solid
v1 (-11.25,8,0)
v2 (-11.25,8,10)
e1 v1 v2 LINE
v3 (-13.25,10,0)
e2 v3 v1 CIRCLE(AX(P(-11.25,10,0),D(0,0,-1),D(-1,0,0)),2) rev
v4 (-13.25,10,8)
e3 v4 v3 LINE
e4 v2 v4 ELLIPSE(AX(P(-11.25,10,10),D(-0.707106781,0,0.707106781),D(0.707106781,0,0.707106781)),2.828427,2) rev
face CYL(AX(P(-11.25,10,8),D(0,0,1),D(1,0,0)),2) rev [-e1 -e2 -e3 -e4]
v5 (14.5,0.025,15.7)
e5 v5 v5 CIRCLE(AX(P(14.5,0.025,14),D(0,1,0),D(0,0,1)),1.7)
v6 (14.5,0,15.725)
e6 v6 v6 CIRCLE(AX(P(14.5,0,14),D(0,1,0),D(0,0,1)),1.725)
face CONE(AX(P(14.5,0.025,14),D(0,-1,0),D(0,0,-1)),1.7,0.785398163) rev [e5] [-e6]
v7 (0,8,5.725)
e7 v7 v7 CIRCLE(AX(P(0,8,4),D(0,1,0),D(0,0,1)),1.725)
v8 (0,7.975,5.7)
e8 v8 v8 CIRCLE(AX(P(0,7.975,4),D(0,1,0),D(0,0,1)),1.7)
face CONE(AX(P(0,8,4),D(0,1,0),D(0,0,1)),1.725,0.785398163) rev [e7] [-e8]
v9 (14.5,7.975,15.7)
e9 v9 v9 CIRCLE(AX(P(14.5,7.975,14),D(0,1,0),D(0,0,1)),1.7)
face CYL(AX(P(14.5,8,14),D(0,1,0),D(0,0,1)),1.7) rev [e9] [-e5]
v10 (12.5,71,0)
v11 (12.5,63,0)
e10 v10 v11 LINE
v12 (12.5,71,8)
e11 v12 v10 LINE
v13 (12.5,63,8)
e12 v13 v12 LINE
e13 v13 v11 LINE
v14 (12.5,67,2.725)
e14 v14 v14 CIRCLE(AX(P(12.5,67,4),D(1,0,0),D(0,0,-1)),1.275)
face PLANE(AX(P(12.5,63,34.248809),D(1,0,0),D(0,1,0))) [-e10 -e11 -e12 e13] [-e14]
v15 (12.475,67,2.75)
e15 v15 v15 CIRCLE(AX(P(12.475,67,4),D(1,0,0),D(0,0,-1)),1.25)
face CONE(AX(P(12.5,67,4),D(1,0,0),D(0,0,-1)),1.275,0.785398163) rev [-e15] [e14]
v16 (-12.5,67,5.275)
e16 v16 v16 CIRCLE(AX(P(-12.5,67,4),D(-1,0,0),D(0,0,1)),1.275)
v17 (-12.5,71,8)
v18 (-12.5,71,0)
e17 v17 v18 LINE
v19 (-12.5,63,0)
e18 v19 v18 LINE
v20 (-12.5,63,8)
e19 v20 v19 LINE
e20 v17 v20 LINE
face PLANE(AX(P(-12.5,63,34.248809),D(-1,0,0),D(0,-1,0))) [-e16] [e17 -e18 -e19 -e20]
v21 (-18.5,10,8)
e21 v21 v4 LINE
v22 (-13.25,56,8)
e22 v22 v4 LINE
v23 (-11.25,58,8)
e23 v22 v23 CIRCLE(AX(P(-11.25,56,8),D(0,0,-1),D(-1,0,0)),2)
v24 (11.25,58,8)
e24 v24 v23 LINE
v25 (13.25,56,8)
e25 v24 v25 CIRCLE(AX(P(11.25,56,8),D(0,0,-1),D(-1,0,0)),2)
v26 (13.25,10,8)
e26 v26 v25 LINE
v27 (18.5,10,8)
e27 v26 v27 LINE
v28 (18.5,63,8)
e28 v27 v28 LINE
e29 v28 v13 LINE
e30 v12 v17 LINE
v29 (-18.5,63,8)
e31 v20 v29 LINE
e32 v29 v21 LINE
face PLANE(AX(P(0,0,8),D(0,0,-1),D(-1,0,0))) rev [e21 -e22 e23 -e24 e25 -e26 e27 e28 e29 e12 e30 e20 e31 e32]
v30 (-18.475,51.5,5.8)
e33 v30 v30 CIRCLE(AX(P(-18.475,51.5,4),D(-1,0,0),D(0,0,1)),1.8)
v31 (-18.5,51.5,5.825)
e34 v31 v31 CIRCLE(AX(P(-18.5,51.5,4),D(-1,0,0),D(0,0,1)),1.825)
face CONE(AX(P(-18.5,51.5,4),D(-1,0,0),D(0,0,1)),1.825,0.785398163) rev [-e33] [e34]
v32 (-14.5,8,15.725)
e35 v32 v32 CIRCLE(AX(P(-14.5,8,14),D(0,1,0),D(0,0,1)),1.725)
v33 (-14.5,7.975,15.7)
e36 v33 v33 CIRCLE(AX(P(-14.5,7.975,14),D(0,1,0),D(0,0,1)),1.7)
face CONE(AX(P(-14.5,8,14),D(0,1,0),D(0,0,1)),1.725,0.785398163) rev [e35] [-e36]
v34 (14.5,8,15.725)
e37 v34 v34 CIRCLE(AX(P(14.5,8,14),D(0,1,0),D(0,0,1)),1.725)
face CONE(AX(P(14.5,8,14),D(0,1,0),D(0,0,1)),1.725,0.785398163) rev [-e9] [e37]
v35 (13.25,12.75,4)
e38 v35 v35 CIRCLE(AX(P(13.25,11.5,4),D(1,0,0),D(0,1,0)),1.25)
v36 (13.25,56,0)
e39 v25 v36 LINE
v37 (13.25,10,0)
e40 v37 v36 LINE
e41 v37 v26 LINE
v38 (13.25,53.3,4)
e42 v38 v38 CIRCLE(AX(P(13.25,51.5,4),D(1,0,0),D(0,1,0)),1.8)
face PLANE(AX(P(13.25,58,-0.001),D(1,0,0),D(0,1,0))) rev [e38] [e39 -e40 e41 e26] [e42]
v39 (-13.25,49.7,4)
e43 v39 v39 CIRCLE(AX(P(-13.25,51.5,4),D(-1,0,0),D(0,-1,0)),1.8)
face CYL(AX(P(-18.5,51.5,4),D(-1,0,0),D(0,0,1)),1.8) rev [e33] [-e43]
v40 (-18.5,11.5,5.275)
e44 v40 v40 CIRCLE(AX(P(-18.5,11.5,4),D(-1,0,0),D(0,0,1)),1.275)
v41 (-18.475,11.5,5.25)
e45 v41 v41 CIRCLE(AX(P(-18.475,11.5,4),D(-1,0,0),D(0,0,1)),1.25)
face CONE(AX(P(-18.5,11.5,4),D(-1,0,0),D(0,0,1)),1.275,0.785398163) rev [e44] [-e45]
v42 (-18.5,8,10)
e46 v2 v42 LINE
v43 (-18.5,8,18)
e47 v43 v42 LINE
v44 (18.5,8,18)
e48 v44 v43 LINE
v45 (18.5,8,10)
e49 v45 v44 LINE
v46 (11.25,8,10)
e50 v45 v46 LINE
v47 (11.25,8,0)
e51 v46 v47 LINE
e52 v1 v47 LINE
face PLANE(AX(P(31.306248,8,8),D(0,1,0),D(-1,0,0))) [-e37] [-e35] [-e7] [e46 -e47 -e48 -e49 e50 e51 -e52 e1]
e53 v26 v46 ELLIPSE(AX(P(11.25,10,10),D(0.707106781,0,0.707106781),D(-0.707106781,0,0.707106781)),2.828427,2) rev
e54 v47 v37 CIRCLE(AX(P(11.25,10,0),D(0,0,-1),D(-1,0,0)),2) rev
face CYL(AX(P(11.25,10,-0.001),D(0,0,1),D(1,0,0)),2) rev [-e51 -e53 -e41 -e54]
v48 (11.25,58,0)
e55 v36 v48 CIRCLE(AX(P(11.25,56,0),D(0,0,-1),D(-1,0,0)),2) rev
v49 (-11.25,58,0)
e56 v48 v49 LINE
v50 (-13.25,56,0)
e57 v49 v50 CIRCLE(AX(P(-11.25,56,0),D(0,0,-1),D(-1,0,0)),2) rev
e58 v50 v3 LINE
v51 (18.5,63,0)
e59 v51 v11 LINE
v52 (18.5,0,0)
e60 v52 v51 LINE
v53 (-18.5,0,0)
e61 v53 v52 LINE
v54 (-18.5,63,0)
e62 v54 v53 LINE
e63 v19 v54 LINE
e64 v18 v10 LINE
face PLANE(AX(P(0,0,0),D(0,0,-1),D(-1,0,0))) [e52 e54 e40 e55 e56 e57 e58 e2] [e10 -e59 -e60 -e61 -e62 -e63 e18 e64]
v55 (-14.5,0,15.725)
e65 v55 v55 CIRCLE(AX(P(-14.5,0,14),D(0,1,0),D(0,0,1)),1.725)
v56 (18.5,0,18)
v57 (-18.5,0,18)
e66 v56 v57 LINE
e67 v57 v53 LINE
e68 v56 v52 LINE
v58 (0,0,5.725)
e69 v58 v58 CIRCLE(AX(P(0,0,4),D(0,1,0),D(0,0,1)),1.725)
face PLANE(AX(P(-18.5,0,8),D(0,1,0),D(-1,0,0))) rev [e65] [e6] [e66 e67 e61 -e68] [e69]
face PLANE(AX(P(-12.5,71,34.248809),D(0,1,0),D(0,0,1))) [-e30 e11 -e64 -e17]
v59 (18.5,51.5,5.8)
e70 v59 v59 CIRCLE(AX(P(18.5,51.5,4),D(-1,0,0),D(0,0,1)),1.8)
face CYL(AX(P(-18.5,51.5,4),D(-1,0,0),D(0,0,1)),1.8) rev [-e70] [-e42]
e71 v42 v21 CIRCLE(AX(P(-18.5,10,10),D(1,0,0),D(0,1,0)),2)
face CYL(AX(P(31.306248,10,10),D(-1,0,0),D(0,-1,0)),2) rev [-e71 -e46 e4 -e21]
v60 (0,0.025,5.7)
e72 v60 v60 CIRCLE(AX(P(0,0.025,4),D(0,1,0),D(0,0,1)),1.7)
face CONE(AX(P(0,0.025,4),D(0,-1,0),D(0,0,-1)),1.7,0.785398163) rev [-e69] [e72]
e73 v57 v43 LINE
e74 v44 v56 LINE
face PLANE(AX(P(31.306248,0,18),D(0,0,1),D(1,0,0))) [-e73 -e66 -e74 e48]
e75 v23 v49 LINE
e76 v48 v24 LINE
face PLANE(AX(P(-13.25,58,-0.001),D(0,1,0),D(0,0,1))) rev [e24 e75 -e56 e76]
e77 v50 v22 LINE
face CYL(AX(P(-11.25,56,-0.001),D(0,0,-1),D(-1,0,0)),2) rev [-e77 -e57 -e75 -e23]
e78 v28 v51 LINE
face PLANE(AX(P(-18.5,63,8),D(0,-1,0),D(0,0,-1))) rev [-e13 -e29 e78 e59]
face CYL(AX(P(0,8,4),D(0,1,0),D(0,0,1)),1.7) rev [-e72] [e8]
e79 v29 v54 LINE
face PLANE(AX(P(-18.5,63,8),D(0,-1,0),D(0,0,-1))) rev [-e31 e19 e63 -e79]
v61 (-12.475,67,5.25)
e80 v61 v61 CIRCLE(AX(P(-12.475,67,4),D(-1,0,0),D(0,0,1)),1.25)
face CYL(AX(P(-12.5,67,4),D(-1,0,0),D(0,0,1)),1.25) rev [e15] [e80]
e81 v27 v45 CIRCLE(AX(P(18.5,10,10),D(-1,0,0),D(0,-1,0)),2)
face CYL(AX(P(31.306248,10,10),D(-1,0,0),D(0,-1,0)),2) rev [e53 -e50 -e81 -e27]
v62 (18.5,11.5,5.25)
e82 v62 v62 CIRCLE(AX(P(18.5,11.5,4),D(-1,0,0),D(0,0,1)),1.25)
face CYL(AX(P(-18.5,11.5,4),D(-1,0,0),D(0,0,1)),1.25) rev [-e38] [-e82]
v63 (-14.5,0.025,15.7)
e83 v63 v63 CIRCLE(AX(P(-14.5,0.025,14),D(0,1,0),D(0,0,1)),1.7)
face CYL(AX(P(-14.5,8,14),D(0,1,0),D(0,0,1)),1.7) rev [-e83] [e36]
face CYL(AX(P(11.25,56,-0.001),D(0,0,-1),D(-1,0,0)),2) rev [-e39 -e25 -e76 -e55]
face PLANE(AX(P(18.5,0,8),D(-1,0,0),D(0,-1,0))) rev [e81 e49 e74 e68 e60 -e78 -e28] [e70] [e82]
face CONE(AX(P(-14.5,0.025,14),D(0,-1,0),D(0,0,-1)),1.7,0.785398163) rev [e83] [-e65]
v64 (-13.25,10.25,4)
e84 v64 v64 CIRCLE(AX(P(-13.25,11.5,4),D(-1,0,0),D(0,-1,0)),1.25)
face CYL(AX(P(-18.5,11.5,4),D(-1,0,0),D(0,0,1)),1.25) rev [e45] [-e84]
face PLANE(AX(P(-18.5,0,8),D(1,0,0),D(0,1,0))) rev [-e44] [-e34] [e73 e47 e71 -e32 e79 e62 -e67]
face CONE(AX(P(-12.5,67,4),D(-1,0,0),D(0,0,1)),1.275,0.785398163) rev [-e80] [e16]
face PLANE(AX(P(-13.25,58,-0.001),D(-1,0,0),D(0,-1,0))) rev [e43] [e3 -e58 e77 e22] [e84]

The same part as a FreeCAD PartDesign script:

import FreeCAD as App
import Part
import Sketcher
from FreeCAD import Vector
Q = App.Units.Quantity


def edges_at(feature, points):
    """Names of the edges that pass closest to the given points."""
    edges = feature.Shape.Edges
    near = lambda p: min(range(len(edges)), key=lambda i: edges[i].distToShape(Part.Vertex(*p))[0])
    return sorted({f"Edge{near(p) + 1}" for p in points})

doc = App.newDocument("Part")
params = doc.addObject("Spreadsheet::Sheet", "Params")
for row, (alias, value) in enumerate([
    ("sketch1_width", "37 mm"),
    ("sketch1_height", "63 mm"),
    ("pad1_length", "8 mm"),
    ("sketch2_diameter", "2 mm"),
    ("pocket1_length", "10 mm"),
    ("sketch3_width", "8 mm"),
    ("sketch3_height", "10 mm"),
    ("pad2_length", "37 mm"),
    ("sketch4_height", "50 mm"),
    ("sketch4_width", "26.5 mm"),
    ("sketch5_width", "8 mm"),
    ("sketch5_width2", "7.95 mm"),
    ("groove_angle", "360 deg"),
    ("linearpattern_pitch", "29 mm"),
    ("linearpattern2_pitch", "17.613915 mm"),
    ("fillet_radius", "2 mm"),
    ("sketch6_width", "25 mm"),
    ("sketch6_height", "8 mm"),
    ("pad3_length", "8 mm"),
    ("sketch7_diameter", "2 mm"),
    ("pocket3_length", "5 mm"),
    ("sketch8_diameter", "2.5 mm"),
    ("hole_diameter", "2.5 mm"),
    ("hole_csink_diameter", "2.55 mm"),
    ("sketch9_diameter", "3.6 mm"),
    ("hole2_diameter", "3.6 mm"),
    ("hole2_csink_diameter", "3.65 mm"),
    ("groove2_angle", "360 deg"),
], start=1):
    params.set(f"A{row}", alias)
    params.set(f"B{row}", "=" + value)
    params.setAlias(f"B{row}", alias)

body = doc.addObject("PartDesign::Body", "Body")

# Sketch on XY plane
sketch1 = body.newObject("Sketcher::SketchObject", "Sketch")
sketch1.AttachmentSupport = (doc.getObject("XY_Plane"), [""])
sketch1.MapMode = "FlatFace"
sketch1.addGeometry([
    Part.LineSegment(Vector(-18, 63, 0), Vector(-18, 0, 0)),
    Part.LineSegment(Vector(-18, 0, 0), Vector(18, 0, 0)),
    Part.LineSegment(Vector(18, 0, 0), Vector(18, 63, 0)),
    Part.LineSegment(Vector(18, 63, 0), Vector(-18, 63, 0)),
], False)
sketch1.addConstraint([
    Sketcher.Constraint("Coincident", 0, 2, 1, 1),
    Sketcher.Constraint("Coincident", 1, 2, 2, 1),
    Sketcher.Constraint("Coincident", 2, 2, 3, 1),
    Sketcher.Constraint("Coincident", 3, 2, 0, 1),
    Sketcher.Constraint("Vertical", 0),
    Sketcher.Constraint("Horizontal", 1),
    Sketcher.Constraint("Vertical", 2),
    Sketcher.Constraint("Horizontal", 3),
    Sketcher.Constraint("Symmetric", 0, 2, 1, 2, -1, 1),
    Sketcher.Constraint("DistanceX", 1, 1, 1, 2, Q("37 mm")),
    Sketcher.Constraint("DistanceY", 0, 2, 0, 1, Q("63 mm")),
])
sketch1.setExpression("Constraints[9]", "Params.sketch1_width")
sketch1.setExpression("Constraints[10]", "Params.sketch1_height")
pad1 = body.newObject("PartDesign::Pad", "Pad")
pad1.Profile = sketch1
pad1.setExpression("Length", "Params.pad1_length")

# Sketch on YZ plane
sketch2 = body.newObject("Sketcher::SketchObject", "Sketch001")
sketch2.AttachmentSupport = (doc.getObject("YZ_Plane"), [""])
sketch2.MapMode = "FlatFace"
sketch2.AttachmentOffset = App.Placement(Vector(0, 0, -18.5), App.Rotation())
sketch2.addGeometry([
    Part.Circle(Vector(51.5, 4, 0), Vector(0, 0, 1), 1),
    Part.Circle(Vector(11.5, 4, 0), Vector(0, 0, 1), 1),
], False)
sketch2.addConstraint([
    Sketcher.Constraint("Equal", 0, 1),
    Sketcher.Constraint("Horizontal", 0, 3, 1, 3),
    Sketcher.Constraint("Diameter", 0, Q("2 mm")),
    Sketcher.Constraint("DistanceY", -1, 1, 0, 3, Q("4 mm")),
    Sketcher.Constraint("DistanceX", 1, 3, 0, 3, Q("40 mm")),
    Sketcher.Constraint("DistanceX", -1, 1, 0, 3, Q("51.5 mm")),
])
sketch2.setExpression("Constraints[2]", "Params.sketch2_diameter")
pocket1 = body.newObject("PartDesign::Pocket", "Pocket")
pocket1.Profile = sketch2
pocket1.setExpression("Length", "Params.pocket1_length")
pocket1.Reversed = True
doc.recompute()

mirrored = body.newObject("PartDesign::Mirrored", "Mirrored")
mirrored.Originals = [pocket1]
mirrored.MirrorPlane = (doc.getObject("YZ_Plane"), [""])
body.Tip = mirrored

# Sketch on YZ plane
sketch3 = body.newObject("Sketcher::SketchObject", "Sketch002")
sketch3.AttachmentSupport = (doc.getObject("YZ_Plane"), [""])
sketch3.MapMode = "FlatFace"
sketch3.AttachmentOffset = App.Placement(Vector(0, 0, -18.5), App.Rotation())
sketch3.addGeometry([
    Part.LineSegment(Vector(8, 8, 0), Vector(0, 8, 0)),
    Part.LineSegment(Vector(0, 8, 0), Vector(0, 18, 0)),
    Part.LineSegment(Vector(0, 18, 0), Vector(8, 18, 0)),
    Part.LineSegment(Vector(8, 18, 0), Vector(8, 8, 0)),
], False)
sketch3.addConstraint([
    Sketcher.Constraint("Coincident", 0, 2, 1, 1),
    Sketcher.Constraint("Coincident", 1, 2, 2, 1),
    Sketcher.Constraint("Coincident", 2, 2, 3, 1),
    Sketcher.Constraint("Coincident", 3, 2, 0, 1),
    Sketcher.Constraint("Horizontal", 0),
    Sketcher.Constraint("Vertical", 1),
    Sketcher.Constraint("Horizontal", 2),
    Sketcher.Constraint("Vertical", 3),
    Sketcher.Constraint("PointOnObject", 0, 2, -2),
    Sketcher.Constraint("DistanceX", 0, 2, 0, 1, Q("8 mm")),
    Sketcher.Constraint("DistanceY", 1, 1, 1, 2, Q("10 mm")),
    Sketcher.Constraint("DistanceY", -1, 1, 0, 2, Q("8 mm")),
])
sketch3.setExpression("Constraints[9]", "Params.sketch3_width")
sketch3.setExpression("Constraints[10]", "Params.sketch3_height")
pad2 = body.newObject("PartDesign::Pad", "Pad001")
pad2.Profile = sketch3
pad2.setExpression("Length", "Params.pad2_length")

# Sketch on XY plane
sketch4 = body.newObject("Sketcher::SketchObject", "Sketch003")
sketch4.AttachmentSupport = (doc.getObject("XY_Plane"), [""])
sketch4.MapMode = "FlatFace"
sketch4.AttachmentOffset = App.Placement(Vector(0, 0, 8), App.Rotation())
sketch4.addGeometry([
    Part.LineSegment(Vector(-13, 58, 0), Vector(-13, 8, 0)),
    Part.LineSegment(Vector(-13, 8, 0), Vector(13, 8, 0)),
    Part.LineSegment(Vector(13, 8, 0), Vector(13, 58, 0)),
    Part.LineSegment(Vector(13, 58, 0), Vector(-13, 58, 0)),
], False)
sketch4.addConstraint([
    Sketcher.Constraint("Coincident", 0, 2, 1, 1),
    Sketcher.Constraint("Coincident", 1, 2, 2, 1),
    Sketcher.Constraint("Coincident", 2, 2, 3, 1),
    Sketcher.Constraint("Coincident", 3, 2, 0, 1),
    Sketcher.Constraint("Vertical", 0),
    Sketcher.Constraint("Horizontal", 1),
    Sketcher.Constraint("Vertical", 2),
    Sketcher.Constraint("Horizontal", 3),
    Sketcher.Constraint("DistanceY", 0, 2, 0, 1, Q("50 mm")),
    Sketcher.Constraint("DistanceX", 1, 1, 1, 2, Q("26.5 mm")),
    Sketcher.Constraint("DistanceY", -1, 1, 0, 2, Q("8 mm")),
    Sketcher.Constraint("DistanceX", 0, 2, -1, 1, Q("13.25 mm")),
])
sketch4.setExpression("Constraints[8]", "Params.sketch4_height")
sketch4.setExpression("Constraints[9]", "Params.sketch4_width")
pocket2 = body.newObject("PartDesign::Pocket", "Pocket001")
pocket2.Profile = sketch4
pocket2.Type = "UpToFirst"

# Sketch on YZ plane
sketch5 = body.newObject("Sketcher::SketchObject", "Sketch004")
sketch5.AttachmentSupport = (doc.getObject("YZ_Plane"), [""])
sketch5.MapMode = "FlatFace"
sketch5.AttachmentOffset = App.Placement(Vector(0, 0, -14.5), App.Rotation())
sketch5.addGeometry([
    Part.LineSegment(Vector(0, 14, 0), Vector(8, 14, 0)),  # 0
    Part.LineSegment(Vector(8, 14, 0), Vector(8, 15.725, 0)),  # 1
    Part.LineSegment(Vector(8, 15.725, 0), Vector(7.975, 15.7, 0)),  # 2
    Part.LineSegment(Vector(7.975, 15.7, 0), Vector(0.025, 15.7, 0)),  # 3
    Part.LineSegment(Vector(0.025, 15.7, 0), Vector(0, 15.725, 0)),  # 4
    Part.LineSegment(Vector(0, 15.725, 0), Vector(0, 14, 0)),  # 5
], False)
sketch5.addGeometry(Part.LineSegment(Vector(8, 14, 0), Vector(0, 14, 0)), True)  # axis
sketch5.addConstraint([
    Sketcher.Constraint("Coincident", 0, 2, 1, 1),
    Sketcher.Constraint("Coincident", 1, 2, 2, 1),
    Sketcher.Constraint("Coincident", 2, 2, 3, 1),
    Sketcher.Constraint("Coincident", 3, 2, 4, 1),
    Sketcher.Constraint("Coincident", 4, 2, 5, 1),
    Sketcher.Constraint("Coincident", 5, 2, 0, 1),
    Sketcher.Constraint("Horizontal", 0),
    Sketcher.Constraint("Vertical", 1),
    Sketcher.Constraint("Horizontal", 3),
    Sketcher.Constraint("Vertical", 5),
    Sketcher.Constraint("Horizontal", 6),
    Sketcher.Constraint("Coincident", 6, 1, 0, 2),
    Sketcher.Constraint("PointOnObject", 4, 2, -2),
    Sketcher.Constraint("PointOnObject", 6, 2, -2),
    Sketcher.Constraint("Perpendicular", 2, 4),
    Sketcher.Constraint("Horizontal", 1, 2, 4, 2),
    Sketcher.Constraint("Equal", 2, 4),
    Sketcher.Constraint("DistanceX", 0, 1, 0, 2, Q("8 mm")),
    Sketcher.Constraint("DistanceY", -1, 1, 0, 2, Q("14 mm")),
    Sketcher.Constraint("DistanceX", 3, 2, 3, 1, Q("7.95 mm")),
    Sketcher.Constraint("DistanceY", -1, 1, 2, 2, Q("15.7 mm")),
])
sketch5.setExpression("Constraints[17]", "Params.sketch5_width")
sketch5.setExpression("Constraints[19]", "Params.sketch5_width2")
groove = body.newObject("PartDesign::Groove", "Groove")
groove.Profile = sketch5
groove.ReferenceAxis = (sketch5, ["Axis0"])
groove.setExpression("Angle", "Params.groove_angle")
doc.recompute()

linearpattern = body.newObject("PartDesign::LinearPattern", "LinearPattern")
linearpattern.Originals = [groove]
linearpattern.Direction = (doc.getObject("X_Axis"), [""])
linearpattern.Mode = "offset"
linearpattern.setExpression("Offset", "Params.linearpattern_pitch")
linearpattern.Occurrences = 2
body.Tip = linearpattern
doc.recompute()

datumline = body.newObject("PartDesign::Line", "DatumLine")
datumline.Placement = App.Placement(Vector(0, 0, 0), App.Rotation(Vector(0, 0, 1), Vector(0.823212786, 0, -0.567732956)))
linearpattern2 = body.newObject("PartDesign::LinearPattern", "LinearPattern001")
linearpattern2.Originals = [groove]
linearpattern2.Direction = (datumline, [""])
linearpattern2.Mode = "offset"
linearpattern2.setExpression("Offset", "Params.linearpattern2_pitch")
linearpattern2.Occurrences = 2
body.Tip = linearpattern2
doc.recompute()

fillet = body.newObject("PartDesign::Fillet", "Fillet")
fillet.Base = (linearpattern2, edges_at(linearpattern2, [
    (15.875, 8, 8),
    (-15.875, 8, 8),
    (-13.25, 8, 4),
    (-13.25, 58, 4),
    (13.25, 58, 4),
    (13.25, 8, 4),
]))
fillet.setExpression("Radius", "Params.fillet_radius")

# Sketch on XY plane
sketch6 = body.newObject("Sketcher::SketchObject", "Sketch005")
sketch6.AttachmentSupport = (doc.getObject("XY_Plane"), [""])
sketch6.MapMode = "FlatFace"
sketch6.addGeometry([
    Part.LineSegment(Vector(12, 71, 0), Vector(12, 63, 0)),
    Part.LineSegment(Vector(12, 63, 0), Vector(-12, 63, 0)),
    Part.LineSegment(Vector(-12, 63, 0), Vector(-12, 71, 0)),
    Part.LineSegment(Vector(-12, 71, 0), Vector(12, 71, 0)),
], False)
sketch6.addConstraint([
    Sketcher.Constraint("Coincident", 0, 2, 1, 1),
    Sketcher.Constraint("Coincident", 1, 2, 2, 1),
    Sketcher.Constraint("Coincident", 2, 2, 3, 1),
    Sketcher.Constraint("Coincident", 3, 2, 0, 1),
    Sketcher.Constraint("Vertical", 0),
    Sketcher.Constraint("Horizontal", 1),
    Sketcher.Constraint("Vertical", 2),
    Sketcher.Constraint("Horizontal", 3),
    Sketcher.Constraint("DistanceX", 1, 2, 1, 1, Q("25 mm")),
    Sketcher.Constraint("DistanceY", 0, 2, 0, 1, Q("8 mm")),
    Sketcher.Constraint("DistanceY", -1, 1, 0, 2, Q("63 mm")),
    Sketcher.Constraint("DistanceX", -1, 1, 0, 2, Q("12.5 mm")),
])
sketch6.setExpression("Constraints[8]", "Params.sketch6_width")
sketch6.setExpression("Constraints[9]", "Params.sketch6_height")
pad3 = body.newObject("PartDesign::Pad", "Pad002")
pad3.Profile = sketch6
pad3.setExpression("Length", "Params.pad3_length")

# Sketch on YZ plane
sketch7 = body.newObject("Sketcher::SketchObject", "Sketch006")
sketch7.AttachmentSupport = (doc.getObject("YZ_Plane"), [""])
sketch7.MapMode = "FlatFace"
sketch7.AttachmentOffset = App.Placement(Vector(0, 0, -12.5), App.Rotation())
sketch7.addGeometry(Part.Circle(Vector(67, 4, 0), Vector(0, 0, 1), 1), False)
sketch7.addConstraint([
    Sketcher.Constraint("Diameter", 0, Q("2 mm")),
    Sketcher.Constraint("DistanceX", -1, 1, 0, 3, Q("67 mm")),
    Sketcher.Constraint("DistanceY", -1, 1, 0, 3, Q("4 mm")),
])
sketch7.setExpression("Constraints[0]", "Params.sketch7_diameter")
pocket3 = body.newObject("PartDesign::Pocket", "Pocket002")
pocket3.Profile = sketch7
pocket3.setExpression("Length", "Params.pocket3_length")
pocket3.Reversed = True
doc.recompute()

mirrored2 = body.newObject("PartDesign::Mirrored", "Mirrored001")
mirrored2.Originals = [pocket3]
mirrored2.MirrorPlane = (doc.getObject("YZ_Plane"), [""])
body.Tip = mirrored2

# Sketch on YZ plane
sketch8 = body.newObject("Sketcher::SketchObject", "Sketch007")
sketch8.AttachmentSupport = (doc.getObject("YZ_Plane"), [""])
sketch8.MapMode = "FlatFace"
sketch8.AttachmentOffset = App.Placement(Vector(0, 0, -18.5), App.Rotation())
sketch8.addGeometry(Part.Circle(Vector(11.5, 4, 0), Vector(0, 0, 1), 1.2), False)
sketch8.addConstraint([
    Sketcher.Constraint("Diameter", 0, Q("2.5 mm")),
    Sketcher.Constraint("DistanceY", -1, 1, 0, 3, Q("4 mm")),
    Sketcher.Constraint("DistanceX", -1, 1, 0, 3, Q("11.5 mm")),
])
sketch8.setExpression("Constraints[0]", "Params.sketch8_diameter")
doc.recompute()
hole = body.newObject("PartDesign::Hole", "Hole")
hole.Profile = sketch8
hole.ThreadType = "None"
hole.setExpression("Diameter", "Params.hole_diameter")
hole.DepthType = "ThroughAll"
hole.HoleCutType = "Countersink"
hole.setExpression("HoleCutDiameter", "Params.hole_csink_diameter")
hole.HoleCutCountersinkAngle = 90
hole.Reversed = True

# Sketch on YZ plane
sketch9 = body.newObject("Sketcher::SketchObject", "Sketch008")
sketch9.AttachmentSupport = (doc.getObject("YZ_Plane"), [""])
sketch9.MapMode = "FlatFace"
sketch9.AttachmentOffset = App.Placement(Vector(0, 0, -18.5), App.Rotation())
sketch9.addGeometry(Part.Circle(Vector(51.5, 4, 0), Vector(0, 0, 1), 1.8), False)
sketch9.addConstraint([
    Sketcher.Constraint("Diameter", 0, Q("3.6 mm")),
    Sketcher.Constraint("DistanceY", -1, 1, 0, 3, Q("4 mm")),
    Sketcher.Constraint("DistanceX", -1, 1, 0, 3, Q("51.5 mm")),
])
sketch9.setExpression("Constraints[0]", "Params.sketch9_diameter")
doc.recompute()
hole2 = body.newObject("PartDesign::Hole", "Hole001")
hole2.Profile = sketch9
hole2.ThreadType = "None"
hole2.setExpression("Diameter", "Params.hole2_diameter")
hole2.DepthType = "ThroughAll"
hole2.HoleCutType = "Countersink"
hole2.setExpression("HoleCutDiameter", "Params.hole2_csink_diameter")
hole2.HoleCutCountersinkAngle = 90
hole2.Reversed = True

# Sketch on XZ plane
sketch10 = body.newObject("Sketcher::SketchObject", "Sketch009")
sketch10.AttachmentSupport = (doc.getObject("XZ_Plane"), [""])
sketch10.MapMode = "FlatFace"
sketch10.AttachmentOffset = App.Placement(Vector(0, 0, -67), App.Rotation())
sketch10.addGeometry([
    Part.LineSegment(Vector(8.251, 4, 0), Vector(-12.5, 4, 0)),  # 0
    Part.LineSegment(Vector(-12.5, 4, 0), Vector(-12.5, 5.275, 0)),  # 1
    Part.LineSegment(Vector(-12.5, 5.275, 0), Vector(-12.475, 5.25, 0)),  # 2
    Part.LineSegment(Vector(-12.475, 5.25, 0), Vector(7.5, 5.25, 0)),  # 3
    Part.LineSegment(Vector(7.5, 5.25, 0), Vector(8.251, 4, 0)),  # 4
], False)
sketch10.addGeometry(Part.LineSegment(Vector(-12.5, 4, 0), Vector(8.251, 4, 0)), True)  # axis
sketch10.addConstraint([
    Sketcher.Constraint("Coincident", 0, 2, 1, 1),
    Sketcher.Constraint("Coincident", 1, 2, 2, 1),
    Sketcher.Constraint("Coincident", 2, 2, 3, 1),
    Sketcher.Constraint("Coincident", 3, 2, 4, 1),
    Sketcher.Constraint("Coincident", 4, 2, 0, 1),
    Sketcher.Constraint("Horizontal", 0),
    Sketcher.Constraint("Vertical", 1),
    Sketcher.Constraint("Horizontal", 3),
    Sketcher.Constraint("Horizontal", 5),
    Sketcher.Constraint("Coincident", 5, 1, 0, 2),
    Sketcher.Constraint("Equal", 0, 5),
    Sketcher.Constraint("Angle", 2, Q("-45 deg")),
    Sketcher.Constraint("Angle", 4, Q("-59 deg")),
    Sketcher.Constraint("DistanceY", -1, 1, 0, 2, Q("4 mm")),
    Sketcher.Constraint("DistanceX", 1, 2, 3, 2, Q("20 mm")),
    Sketcher.Constraint("DistanceX", 0, 2, -1, 1, Q("12.5 mm")),
    Sketcher.Constraint("DistanceX", 3, 1, 3, 2, Q("19.975 mm")),
    Sketcher.Constraint("DistanceY", 1, 1, 1, 2, Q("1.275 mm")),
])
groove2 = body.newObject("PartDesign::Groove", "Groove001")
groove2.Profile = sketch10
groove2.ReferenceAxis = (sketch10, ["Axis0"])
groove2.setExpression("Angle", "Params.groove2_angle")
doc.recompute()

mirrored3 = body.newObject("PartDesign::Mirrored", "Mirrored002")
mirrored3.Originals = [groove2]
mirrored3.MirrorPlane = (doc.getObject("YZ_Plane"), [""])
body.Tip = mirrored3

doc.recompute()
